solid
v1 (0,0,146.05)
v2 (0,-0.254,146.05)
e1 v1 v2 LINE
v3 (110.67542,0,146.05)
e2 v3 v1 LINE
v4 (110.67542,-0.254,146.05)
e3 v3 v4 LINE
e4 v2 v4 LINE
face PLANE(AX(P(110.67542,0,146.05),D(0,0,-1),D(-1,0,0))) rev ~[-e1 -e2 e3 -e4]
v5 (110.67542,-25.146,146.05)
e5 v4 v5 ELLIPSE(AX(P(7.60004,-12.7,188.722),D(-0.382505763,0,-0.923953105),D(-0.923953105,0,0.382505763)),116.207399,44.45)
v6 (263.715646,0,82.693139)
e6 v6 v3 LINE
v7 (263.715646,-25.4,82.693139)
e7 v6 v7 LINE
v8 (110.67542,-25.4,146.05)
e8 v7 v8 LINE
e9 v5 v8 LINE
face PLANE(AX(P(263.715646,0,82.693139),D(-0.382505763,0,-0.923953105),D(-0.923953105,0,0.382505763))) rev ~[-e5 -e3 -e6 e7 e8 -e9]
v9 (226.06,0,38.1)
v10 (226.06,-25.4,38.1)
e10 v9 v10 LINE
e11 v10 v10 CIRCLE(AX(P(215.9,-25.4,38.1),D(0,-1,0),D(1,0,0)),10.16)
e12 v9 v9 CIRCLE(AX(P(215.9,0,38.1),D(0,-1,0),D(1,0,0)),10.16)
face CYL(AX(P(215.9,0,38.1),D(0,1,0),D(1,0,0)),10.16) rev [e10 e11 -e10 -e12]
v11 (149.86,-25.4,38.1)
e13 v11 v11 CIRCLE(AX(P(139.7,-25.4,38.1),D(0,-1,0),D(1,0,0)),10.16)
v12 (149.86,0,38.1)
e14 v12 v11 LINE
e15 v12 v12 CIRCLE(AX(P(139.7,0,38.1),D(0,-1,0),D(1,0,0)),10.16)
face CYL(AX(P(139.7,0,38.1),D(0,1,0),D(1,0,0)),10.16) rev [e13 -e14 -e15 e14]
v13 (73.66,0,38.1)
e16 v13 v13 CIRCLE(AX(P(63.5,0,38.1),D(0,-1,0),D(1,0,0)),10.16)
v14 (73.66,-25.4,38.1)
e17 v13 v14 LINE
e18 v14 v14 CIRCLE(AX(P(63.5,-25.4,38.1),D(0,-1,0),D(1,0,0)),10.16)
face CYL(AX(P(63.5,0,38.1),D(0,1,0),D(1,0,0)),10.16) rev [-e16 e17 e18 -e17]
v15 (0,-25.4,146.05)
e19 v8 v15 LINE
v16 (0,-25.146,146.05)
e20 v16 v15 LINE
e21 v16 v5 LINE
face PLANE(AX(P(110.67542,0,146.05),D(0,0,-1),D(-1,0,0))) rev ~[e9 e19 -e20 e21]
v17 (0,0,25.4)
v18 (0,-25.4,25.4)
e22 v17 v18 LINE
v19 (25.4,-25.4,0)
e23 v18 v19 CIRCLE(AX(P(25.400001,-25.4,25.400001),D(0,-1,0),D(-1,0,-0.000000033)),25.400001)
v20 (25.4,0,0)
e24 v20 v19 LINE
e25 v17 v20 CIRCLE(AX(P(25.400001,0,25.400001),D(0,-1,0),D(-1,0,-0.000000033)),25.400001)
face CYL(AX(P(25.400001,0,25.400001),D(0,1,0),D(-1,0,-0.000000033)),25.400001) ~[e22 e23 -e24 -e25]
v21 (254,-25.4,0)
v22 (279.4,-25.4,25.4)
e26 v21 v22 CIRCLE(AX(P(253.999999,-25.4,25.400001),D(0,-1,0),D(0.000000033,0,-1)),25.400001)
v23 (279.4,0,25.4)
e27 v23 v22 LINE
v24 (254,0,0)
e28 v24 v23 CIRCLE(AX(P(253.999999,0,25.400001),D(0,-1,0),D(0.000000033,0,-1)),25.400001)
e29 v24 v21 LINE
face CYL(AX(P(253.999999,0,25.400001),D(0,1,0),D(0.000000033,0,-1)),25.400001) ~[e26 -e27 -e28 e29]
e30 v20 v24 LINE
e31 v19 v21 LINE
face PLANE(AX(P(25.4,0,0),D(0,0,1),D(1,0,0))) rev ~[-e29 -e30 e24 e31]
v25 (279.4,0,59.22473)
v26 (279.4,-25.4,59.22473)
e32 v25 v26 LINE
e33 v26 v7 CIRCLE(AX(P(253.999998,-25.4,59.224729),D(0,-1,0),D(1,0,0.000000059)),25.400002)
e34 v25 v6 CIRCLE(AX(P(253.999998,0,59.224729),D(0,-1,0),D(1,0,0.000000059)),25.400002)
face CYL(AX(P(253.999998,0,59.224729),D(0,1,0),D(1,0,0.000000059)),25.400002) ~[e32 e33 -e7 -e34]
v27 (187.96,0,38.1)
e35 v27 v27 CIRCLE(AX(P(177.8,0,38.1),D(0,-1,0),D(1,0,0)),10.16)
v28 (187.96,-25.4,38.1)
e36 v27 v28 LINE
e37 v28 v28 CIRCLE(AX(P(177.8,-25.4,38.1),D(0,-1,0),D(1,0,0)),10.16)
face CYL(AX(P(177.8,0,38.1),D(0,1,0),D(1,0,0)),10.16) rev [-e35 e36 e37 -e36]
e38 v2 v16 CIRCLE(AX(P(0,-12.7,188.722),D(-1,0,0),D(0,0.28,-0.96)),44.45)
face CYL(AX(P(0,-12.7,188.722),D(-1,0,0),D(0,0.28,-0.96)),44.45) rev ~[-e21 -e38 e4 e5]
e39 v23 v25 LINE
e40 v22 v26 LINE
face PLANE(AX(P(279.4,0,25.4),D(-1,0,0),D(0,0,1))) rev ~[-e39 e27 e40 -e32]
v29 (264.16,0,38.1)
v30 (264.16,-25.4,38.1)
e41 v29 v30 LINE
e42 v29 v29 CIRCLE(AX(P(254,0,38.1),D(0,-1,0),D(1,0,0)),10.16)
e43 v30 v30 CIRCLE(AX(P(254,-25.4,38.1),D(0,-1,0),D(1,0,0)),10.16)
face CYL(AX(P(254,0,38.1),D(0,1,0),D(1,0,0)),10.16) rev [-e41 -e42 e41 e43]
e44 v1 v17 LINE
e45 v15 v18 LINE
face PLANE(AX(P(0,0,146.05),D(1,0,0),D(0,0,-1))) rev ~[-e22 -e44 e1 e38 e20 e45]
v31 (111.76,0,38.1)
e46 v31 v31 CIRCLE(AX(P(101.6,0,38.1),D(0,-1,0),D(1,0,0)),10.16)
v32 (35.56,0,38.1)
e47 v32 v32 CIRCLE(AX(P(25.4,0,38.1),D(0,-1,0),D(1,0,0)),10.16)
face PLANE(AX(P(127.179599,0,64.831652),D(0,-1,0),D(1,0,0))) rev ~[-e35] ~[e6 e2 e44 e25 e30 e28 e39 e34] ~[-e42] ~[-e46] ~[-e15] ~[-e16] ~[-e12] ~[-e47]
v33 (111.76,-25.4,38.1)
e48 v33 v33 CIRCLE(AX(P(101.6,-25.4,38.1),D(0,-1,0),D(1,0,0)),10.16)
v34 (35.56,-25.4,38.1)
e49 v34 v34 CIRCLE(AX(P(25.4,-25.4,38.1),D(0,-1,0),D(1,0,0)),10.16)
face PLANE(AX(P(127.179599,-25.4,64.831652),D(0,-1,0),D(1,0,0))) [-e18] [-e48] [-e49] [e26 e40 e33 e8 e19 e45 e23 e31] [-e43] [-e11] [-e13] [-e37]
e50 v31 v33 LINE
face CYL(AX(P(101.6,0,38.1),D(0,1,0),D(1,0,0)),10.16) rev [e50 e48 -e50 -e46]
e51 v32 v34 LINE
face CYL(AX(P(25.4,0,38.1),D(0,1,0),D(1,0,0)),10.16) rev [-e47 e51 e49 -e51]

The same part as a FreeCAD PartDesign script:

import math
import FreeCAD as App
import Part
import Sketcher
Q = App.Units.Quantity

doc = App.newDocument("Part")
body = doc.addObject("PartDesign::Body", "Body")

sketch1 = body.newObject("Sketcher::SketchObject", "Sketch")
sketch1.AttachmentSupport = (doc.getObject("XZ_Plane"), [""])
sketch1.MapMode = "FlatFace"
sketch1.addGeometry(Part.LineSegment(App.Vector(0, 146, 0), App.Vector(0, 25, 0)), False)
sketch1.addGeometry(Part.ArcOfCircle(Part.Circle(App.Vector(25, 25, 0), App.Vector(0, 0, 1), 25), math.radians(-180), math.radians(-90)), False)
sketch1.addGeometry(Part.LineSegment(App.Vector(25, 0, 0), App.Vector(254, 0, 0)), False)
sketch1.addGeometry(Part.ArcOfCircle(Part.Circle(App.Vector(254, 25, 0), App.Vector(0, 0, 1), 25), math.radians(-90), math.radians(0)), False)
sketch1.addGeometry(Part.LineSegment(App.Vector(279, 25, 0), App.Vector(279, 59, 0)), False)
sketch1.addGeometry(Part.ArcOfCircle(Part.Circle(App.Vector(254, 59, 0), App.Vector(0, 0, 1), 25), math.radians(0), math.radians(68)), False)
sketch1.addGeometry(Part.LineSegment(App.Vector(264, 83, 0), App.Vector(111, 146, 0)), False)
sketch1.addGeometry(Part.LineSegment(App.Vector(111, 146, 0), App.Vector(0, 146, 0)), False)
sketch1.addGeometry(Part.Circle(App.Vector(25, 38, 0), App.Vector(0, 0, 1), 10), False)
sketch1.addGeometry(Part.Circle(App.Vector(64, 38, 0), App.Vector(0, 0, 1), 10), False)
sketch1.addGeometry(Part.Circle(App.Vector(102, 38, 0), App.Vector(0, 0, 1), 10), False)
sketch1.addGeometry(Part.Circle(App.Vector(140, 38, 0), App.Vector(0, 0, 1), 10), False)
sketch1.addGeometry(Part.Circle(App.Vector(178, 38, 0), App.Vector(0, 0, 1), 10), False)
sketch1.addGeometry(Part.Circle(App.Vector(216, 38, 0), App.Vector(0, 0, 1), 10), False)
sketch1.addGeometry(Part.Circle(App.Vector(254, 38, 0), App.Vector(0, 0, 1), 10), False)
sketch1.addConstraint(Sketcher.Constraint("Tangent", 0, 2, 1, 1))
sketch1.addConstraint(Sketcher.Constraint("Tangent", 1, 2, 2, 1))
sketch1.addConstraint(Sketcher.Constraint("Tangent", 2, 2, 3, 1))
sketch1.addConstraint(Sketcher.Constraint("Tangent", 3, 2, 4, 1))
sketch1.addConstraint(Sketcher.Constraint("Tangent", 4, 2, 5, 1))
sketch1.addConstraint(Sketcher.Constraint("Tangent", 5, 2, 6, 1))
sketch1.addConstraint(Sketcher.Constraint("Coincident", 6, 2, 7, 1))
sketch1.addConstraint(Sketcher.Constraint("Coincident", 7, 2, 0, 1))
sketch1.addConstraint(Sketcher.Constraint("Vertical", 0))
sketch1.addConstraint(Sketcher.Constraint("Horizontal", 2))
sketch1.addConstraint(Sketcher.Constraint("Vertical", 4))
sketch1.addConstraint(Sketcher.Constraint("Horizontal", 7))
sketch1.addConstraint(Sketcher.Constraint("Equal", 1, 3))
sketch1.addConstraint(Sketcher.Constraint("Equal", 3, 5))
sketch1.addConstraint(Sketcher.Constraint("Equal", 8, 9))
sketch1.addConstraint(Sketcher.Constraint("Equal", 9, 10))
sketch1.addConstraint(Sketcher.Constraint("Equal", 10, 11))
sketch1.addConstraint(Sketcher.Constraint("Equal", 11, 12))
sketch1.addConstraint(Sketcher.Constraint("Equal", 12, 13))
sketch1.addConstraint(Sketcher.Constraint("Equal", 13, 14))
sketch1.addConstraint(Sketcher.Constraint("PointOnObject", 0, 2, -2))
sketch1.addConstraint(Sketcher.Constraint("PointOnObject", 1, 2, -1))
sketch1.addConstraint(Sketcher.Constraint("Horizontal", 8, 3, 9, 3))
sketch1.addConstraint(Sketcher.Constraint("Horizontal", 9, 3, 10, 3))
sketch1.addConstraint(Sketcher.Constraint("Horizontal", 10, 3, 11, 3))
sketch1.addConstraint(Sketcher.Constraint("Horizontal", 11, 3, 12, 3))
sketch1.addConstraint(Sketcher.Constraint("Horizontal", 12, 3, 13, 3))
sketch1.addConstraint(Sketcher.Constraint("Horizontal", 13, 3, 14, 3))
sketch1.addConstraint(Sketcher.Constraint("Vertical", 1, 3, 8, 3))
sketch1.addConstraint(Sketcher.Constraint("Vertical", 3, 3, 14, 3))
sketch1.addConstraint(Sketcher.Constraint("Radius", 1, Q("1 in")))
sketch1.addConstraint(Sketcher.Constraint("Diameter", 8, Q("0.8 in")))
sketch1.addConstraint(Sketcher.Constraint("DistanceX", 2, 1, 2, 2, Q("9 in")))
sketch1.addConstraint(Sketcher.Constraint("DistanceX", -1, 1, 10, 3, Q("4 in")))
sketch1.addConstraint(Sketcher.Constraint("DistanceX", -1, 1, 12, 3, Q("7 in")))
sketch1.addConstraint(Sketcher.Constraint("DistanceX", 9, 3, 11, 3, Q("3 in")))
sketch1.addConstraint(Sketcher.Constraint("DistanceX", 11, 3, 13, 3, Q("3 in")))
sketch1.addConstraint(Sketcher.Constraint("DistanceY", 0, 2, 0, 1, Q("4.75 in")))
sketch1.addConstraint(Sketcher.Constraint("DistanceY", -1, 1, 8, 3, Q("1.5 in")))
sketch1.addConstraint(Sketcher.Constraint("DistanceX", -1, 1, 9, 3, Q("2.5 in")))
sketch1.addConstraint(Sketcher.Constraint("DistanceX", 7, 2, 7, 1, Q("4.3573 in")))
sketch1.addConstraint(Sketcher.Constraint("DistanceY", 4, 1, 4, 2, 33.82473))
pad1 = body.newObject("PartDesign::Pad", "Pad")
pad1.Profile = sketch1
pad1.Length = Q("1 in")

sketch2 = body.newObject("Sketcher::SketchObject", "Sketch001")
sketch2.AttachmentSupport = (doc.getObject("YZ_Plane"), [""])
sketch2.MapMode = "FlatFace"
sketch2.addGeometry(Part.LineSegment(App.Vector(-25, 146, 0), App.Vector(0, 146, 0)), False)
sketch2.addGeometry(Part.ArcOfCircle(Part.Circle(App.Vector(-13, 189, 0), App.Vector(0, 0, 1), 44), math.radians(-106), math.radians(-74)), False)
sketch2.addConstraint(Sketcher.Constraint("Coincident", 0, 1, 1, 1))
sketch2.addConstraint(Sketcher.Constraint("Coincident", 1, 2, 0, 2))
sketch2.addConstraint(Sketcher.Constraint("Horizontal", 0))
sketch2.addConstraint(Sketcher.Constraint("Radius", 1, Q("1.75 in")))
sketch2.addConstraint(Sketcher.Constraint("DistanceX", 0, 1, 0, 2, Q("0.98 in")))
sketch2.addConstraint(Sketcher.Constraint("DistanceX", 1, 3, -1, 1, Q("0.5 in")))
sketch2.addConstraint(Sketcher.Constraint("DistanceY", -1, 1, 1, 3, Q("7.43 in")))
pocket1 = body.newObject("PartDesign::Pocket", "Pocket")
pocket1.Profile = sketch2
pocket1.Length = Q("6 in")
pocket1.Reversed = True

doc.recompute()
